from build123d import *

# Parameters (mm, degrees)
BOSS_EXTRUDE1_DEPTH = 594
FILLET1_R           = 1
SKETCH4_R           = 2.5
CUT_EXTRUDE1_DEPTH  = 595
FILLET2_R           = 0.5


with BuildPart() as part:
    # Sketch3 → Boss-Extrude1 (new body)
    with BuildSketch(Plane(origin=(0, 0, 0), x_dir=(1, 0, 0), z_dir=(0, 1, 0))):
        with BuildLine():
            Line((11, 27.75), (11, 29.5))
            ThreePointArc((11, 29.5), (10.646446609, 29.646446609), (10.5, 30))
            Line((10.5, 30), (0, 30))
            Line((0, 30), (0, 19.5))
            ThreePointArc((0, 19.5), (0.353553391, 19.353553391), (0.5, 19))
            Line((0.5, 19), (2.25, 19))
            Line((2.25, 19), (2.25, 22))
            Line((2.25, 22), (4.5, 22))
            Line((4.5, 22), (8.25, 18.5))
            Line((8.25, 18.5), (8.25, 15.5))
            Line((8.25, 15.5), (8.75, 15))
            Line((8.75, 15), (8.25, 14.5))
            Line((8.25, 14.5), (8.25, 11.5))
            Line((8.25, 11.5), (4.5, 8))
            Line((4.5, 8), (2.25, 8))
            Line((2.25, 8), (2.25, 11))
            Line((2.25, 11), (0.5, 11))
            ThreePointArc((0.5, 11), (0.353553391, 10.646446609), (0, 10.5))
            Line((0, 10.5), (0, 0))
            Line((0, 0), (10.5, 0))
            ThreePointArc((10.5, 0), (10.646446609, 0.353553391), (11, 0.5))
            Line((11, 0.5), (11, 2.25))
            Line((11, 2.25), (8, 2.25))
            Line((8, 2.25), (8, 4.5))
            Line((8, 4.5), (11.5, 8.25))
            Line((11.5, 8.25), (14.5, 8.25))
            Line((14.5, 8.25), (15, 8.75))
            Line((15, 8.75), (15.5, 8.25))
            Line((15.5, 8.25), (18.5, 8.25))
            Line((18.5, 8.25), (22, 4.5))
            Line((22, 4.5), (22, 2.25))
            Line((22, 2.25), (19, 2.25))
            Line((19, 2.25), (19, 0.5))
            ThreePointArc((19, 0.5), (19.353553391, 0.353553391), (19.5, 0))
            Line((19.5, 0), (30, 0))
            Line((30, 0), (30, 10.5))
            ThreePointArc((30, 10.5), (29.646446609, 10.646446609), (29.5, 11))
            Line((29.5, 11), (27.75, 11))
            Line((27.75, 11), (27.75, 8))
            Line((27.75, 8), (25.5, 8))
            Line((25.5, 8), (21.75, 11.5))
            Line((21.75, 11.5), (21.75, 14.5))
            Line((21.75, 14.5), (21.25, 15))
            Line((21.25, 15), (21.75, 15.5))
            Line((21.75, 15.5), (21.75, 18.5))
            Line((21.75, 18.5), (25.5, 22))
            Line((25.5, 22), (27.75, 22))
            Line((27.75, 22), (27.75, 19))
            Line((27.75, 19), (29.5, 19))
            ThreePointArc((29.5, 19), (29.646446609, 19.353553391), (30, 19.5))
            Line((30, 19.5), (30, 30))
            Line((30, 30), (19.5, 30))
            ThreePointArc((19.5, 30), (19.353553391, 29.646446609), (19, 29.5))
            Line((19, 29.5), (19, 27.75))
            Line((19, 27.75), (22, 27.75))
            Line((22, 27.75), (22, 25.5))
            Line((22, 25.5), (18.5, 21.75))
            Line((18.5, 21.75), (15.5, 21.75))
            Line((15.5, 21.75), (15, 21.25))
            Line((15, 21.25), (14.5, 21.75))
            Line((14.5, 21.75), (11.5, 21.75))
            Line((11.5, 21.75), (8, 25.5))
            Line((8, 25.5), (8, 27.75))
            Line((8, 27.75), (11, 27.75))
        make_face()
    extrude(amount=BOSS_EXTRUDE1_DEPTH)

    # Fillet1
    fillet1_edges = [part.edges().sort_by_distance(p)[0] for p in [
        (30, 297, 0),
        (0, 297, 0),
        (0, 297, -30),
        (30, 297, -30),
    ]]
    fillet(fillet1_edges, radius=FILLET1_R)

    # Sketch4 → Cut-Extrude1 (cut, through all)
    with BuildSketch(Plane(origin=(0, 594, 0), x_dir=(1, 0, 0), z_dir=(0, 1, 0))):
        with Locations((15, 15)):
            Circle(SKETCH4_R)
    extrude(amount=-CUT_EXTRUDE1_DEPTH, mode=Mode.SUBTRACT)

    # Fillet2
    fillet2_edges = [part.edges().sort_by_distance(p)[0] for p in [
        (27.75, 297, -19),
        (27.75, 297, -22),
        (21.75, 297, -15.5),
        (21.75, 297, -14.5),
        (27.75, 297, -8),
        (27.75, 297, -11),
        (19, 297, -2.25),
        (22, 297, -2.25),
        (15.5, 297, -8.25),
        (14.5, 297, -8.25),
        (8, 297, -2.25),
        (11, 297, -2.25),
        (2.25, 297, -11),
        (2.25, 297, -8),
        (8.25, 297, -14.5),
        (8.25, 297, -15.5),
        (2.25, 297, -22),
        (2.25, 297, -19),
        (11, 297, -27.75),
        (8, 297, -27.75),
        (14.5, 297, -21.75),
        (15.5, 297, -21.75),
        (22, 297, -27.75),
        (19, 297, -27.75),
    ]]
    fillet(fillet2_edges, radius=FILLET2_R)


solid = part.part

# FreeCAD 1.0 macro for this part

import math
import FreeCAD as App
import Part
import Sketcher

V = App.Vector
Q = App.Units.Quantity


def edges_at(feature, points):
    """Names of the edges that pass closest to the given points."""
    edges = feature.Shape.Edges
    near = lambda p: min(range(len(edges)), key=lambda i: edges[i].distToShape(Part.Vertex(*p))[0])
    return sorted({f"Edge{near(p) + 1}" for p in points})

doc = App.newDocument("Part")
body = doc.addObject("PartDesign::Body", "Body")

# Sketch on XZ plane
sketch1 = doc.addObject("Sketcher::SketchObject", "Sketch")
body.addObject(sketch1)
sketch1.AttachmentSupport = (doc.XZ_Plane, [""])
sketch1.MapMode = "FlatFace"
sketch1.addGeometry(Part.LineSegment(V(11, -27.75, 0), V(11, -29.5, 0)), False)
sketch1.addGeometry(Part.ArcOfCircle(Part.Circle(V(11, -30, 0), V(0, 0, 1), 0.5), math.radians(90), math.radians(180)), False)
sketch1.addGeometry(Part.LineSegment(V(10.5, -30, 0), V(0, -30, 0)), False)
sketch1.addGeometry(Part.LineSegment(V(0, -30, 0), V(0, -19.5, 0)), False)
sketch1.addGeometry(Part.ArcOfCircle(Part.Circle(V(0, -19, 0), V(0, 0, 1), 0.5), math.radians(-90), math.radians(0)), False)
sketch1.addGeometry(Part.LineSegment(V(0.5, -19, 0), V(2.25, -19, 0)), False)
sketch1.addGeometry(Part.LineSegment(V(2.25, -19, 0), V(2.25, -22, 0)), False)
sketch1.addGeometry(Part.LineSegment(V(2.25, -22, 0), V(4.5, -22, 0)), False)
sketch1.addGeometry(Part.LineSegment(V(4.5, -22, 0), V(8.25, -18.5, 0)), False)
sketch1.addGeometry(Part.LineSegment(V(8.25, -18.5, 0), V(8.25, -15.5, 0)), False)
sketch1.addGeometry(Part.LineSegment(V(8.25, -15.5, 0), V(8.75, -15, 0)), False)
sketch1.addGeometry(Part.LineSegment(V(8.75, -15, 0), V(8.25, -14.5, 0)), False)
sketch1.addGeometry(Part.LineSegment(V(8.25, -14.5, 0), V(8.25, -11.5, 0)), False)
sketch1.addGeometry(Part.LineSegment(V(8.25, -11.5, 0), V(4.5, -8, 0)), False)
sketch1.addGeometry(Part.LineSegment(V(4.5, -8, 0), V(2.25, -8, 0)), False)
sketch1.addGeometry(Part.LineSegment(V(2.25, -8, 0), V(2.25, -11, 0)), False)
sketch1.addGeometry(Part.LineSegment(V(2.25, -11, 0), V(0.5, -11, 0)), False)
sketch1.addGeometry(Part.ArcOfCircle(Part.Circle(V(0, -11, 0), V(0, 0, 1), 0.5), math.radians(0), math.radians(90)), False)
sketch1.addGeometry(Part.LineSegment(V(0, -10.5, 0), V(0, 0, 0)), False)
sketch1.addGeometry(Part.LineSegment(V(0, 0, 0), V(10.5, 0, 0)), False)
sketch1.addGeometry(Part.ArcOfCircle(Part.Circle(V(11, 0, 0), V(0, 0, 1), 0.5), math.radians(180), math.radians(270)), False)
sketch1.addGeometry(Part.LineSegment(V(11, -0.5, 0), V(11, -2.25, 0)), False)
sketch1.addGeometry(Part.LineSegment(V(11, -2.25, 0), V(8, -2.25, 0)), False)
sketch1.addGeometry(Part.LineSegment(V(8, -2.25, 0), V(8, -4.5, 0)), False)
sketch1.addGeometry(Part.LineSegment(V(8, -4.5, 0), V(11.5, -8.25, 0)), False)
sketch1.addGeometry(Part.LineSegment(V(11.5, -8.25, 0), V(14.5, -8.25, 0)), False)
sketch1.addGeometry(Part.LineSegment(V(14.5, -8.25, 0), V(15, -8.75, 0)), False)
sketch1.addGeometry(Part.LineSegment(V(15, -8.75, 0), V(15.5, -8.25, 0)), False)
sketch1.addGeometry(Part.LineSegment(V(15.5, -8.25, 0), V(18.5, -8.25, 0)), False)
sketch1.addGeometry(Part.LineSegment(V(18.5, -8.25, 0), V(22, -4.5, 0)), False)
sketch1.addGeometry(Part.LineSegment(V(22, -4.5, 0), V(22, -2.25, 0)), False)
sketch1.addGeometry(Part.LineSegment(V(22, -2.25, 0), V(19, -2.25, 0)), False)
sketch1.addGeometry(Part.LineSegment(V(19, -2.25, 0), V(19, -0.5, 0)), False)
sketch1.addGeometry(Part.ArcOfCircle(Part.Circle(V(19, 0, 0), V(0, 0, 1), 0.5), math.radians(-90), math.radians(0)), False)
sketch1.addGeometry(Part.LineSegment(V(19.5, 0, 0), V(30, 0, 0)), False)
sketch1.addGeometry(Part.LineSegment(V(30, 0, 0), V(30, -10.5, 0)), False)
sketch1.addGeometry(Part.ArcOfCircle(Part.Circle(V(30, -11, 0), V(0, 0, 1), 0.5), math.radians(90), math.radians(180)), False)
sketch1.addGeometry(Part.LineSegment(V(29.5, -11, 0), V(27.75, -11, 0)), False)
sketch1.addGeometry(Part.LineSegment(V(27.75, -11, 0), V(27.75, -8, 0)), False)
sketch1.addGeometry(Part.LineSegment(V(27.75, -8, 0), V(25.5, -8, 0)), False)
sketch1.addGeometry(Part.LineSegment(V(25.5, -8, 0), V(21.75, -11.5, 0)), False)
sketch1.addGeometry(Part.LineSegment(V(21.75, -11.5, 0), V(21.75, -14.5, 0)), False)
sketch1.addGeometry(Part.LineSegment(V(21.75, -14.5, 0), V(21.25, -15, 0)), False)
sketch1.addGeometry(Part.LineSegment(V(21.25, -15, 0), V(21.75, -15.5, 0)), False)
sketch1.addGeometry(Part.LineSegment(V(21.75, -15.5, 0), V(21.75, -18.5, 0)), False)
sketch1.addGeometry(Part.LineSegment(V(21.75, -18.5, 0), V(25.5, -22, 0)), False)
sketch1.addGeometry(Part.LineSegment(V(25.5, -22, 0), V(27.75, -22, 0)), False)
sketch1.addGeometry(Part.LineSegment(V(27.75, -22, 0), V(27.75, -19, 0)), False)
sketch1.addGeometry(Part.LineSegment(V(27.75, -19, 0), V(29.5, -19, 0)), False)
sketch1.addGeometry(Part.ArcOfCircle(Part.Circle(V(30, -19, 0), V(0, 0, 1), 0.5), math.radians(180), math.radians(270)), False)
sketch1.addGeometry(Part.LineSegment(V(30, -19.5, 0), V(30, -30, 0)), False)
sketch1.addGeometry(Part.LineSegment(V(30, -30, 0), V(19.5, -30, 0)), False)
sketch1.addGeometry(Part.ArcOfCircle(Part.Circle(V(19, -30, 0), V(0, 0, 1), 0.5), math.radians(0), math.radians(90)), False)
sketch1.addGeometry(Part.LineSegment(V(19, -29.5, 0), V(19, -27.75, 0)), False)
sketch1.addGeometry(Part.LineSegment(V(19, -27.75, 0), V(22, -27.75, 0)), False)
sketch1.addGeometry(Part.LineSegment(V(22, -27.75, 0), V(22, -25.5, 0)), False)
sketch1.addGeometry(Part.LineSegment(V(22, -25.5, 0), V(18.5, -21.75, 0)), False)
sketch1.addGeometry(Part.LineSegment(V(18.5, -21.75, 0), V(15.5, -21.75, 0)), False)
sketch1.addGeometry(Part.LineSegment(V(15.5, -21.75, 0), V(15, -21.25, 0)), False)
sketch1.addGeometry(Part.LineSegment(V(15, -21.25, 0), V(14.5, -21.75, 0)), False)
sketch1.addGeometry(Part.LineSegment(V(14.5, -21.75, 0), V(11.5, -21.75, 0)), False)
sketch1.addGeometry(Part.LineSegment(V(11.5, -21.75, 0), V(8, -25.5, 0)), False)
sketch1.addGeometry(Part.LineSegment(V(8, -25.5, 0), V(8, -27.75, 0)), False)
sketch1.addGeometry(Part.LineSegment(V(8, -27.75, 0), V(11, -27.75, 0)), False)
sketch1.addConstraint(Sketcher.Constraint("Coincident", 0, 2, 1, 1))
sketch1.addConstraint(Sketcher.Constraint("Coincident", 1, 2, 2, 1))
sketch1.addConstraint(Sketcher.Constraint("Coincident", 2, 2, 3, 1))
sketch1.addConstraint(Sketcher.Constraint("Coincident", 3, 2, 4, 1))
sketch1.addConstraint(Sketcher.Constraint("Coincident", 4, 2, 5, 1))
sketch1.addConstraint(Sketcher.Constraint("Coincident", 5, 2, 6, 1))
sketch1.addConstraint(Sketcher.Constraint("Coincident", 6, 2, 7, 1))
sketch1.addConstraint(Sketcher.Constraint("Coincident", 7, 2, 8, 1))
sketch1.addConstraint(Sketcher.Constraint("Coincident", 8, 2, 9, 1))
sketch1.addConstraint(Sketcher.Constraint("Coincident", 9, 2, 10, 1))
sketch1.addConstraint(Sketcher.Constraint("Coincident", 10, 2, 11, 1))
sketch1.addConstraint(Sketcher.Constraint("Coincident", 11, 2, 12, 1))
sketch1.addConstraint(Sketcher.Constraint("Coincident", 12, 2, 13, 1))
sketch1.addConstraint(Sketcher.Constraint("Coincident", 13, 2, 14, 1))
sketch1.addConstraint(Sketcher.Constraint("Coincident", 14, 2, 15, 1))
sketch1.addConstraint(Sketcher.Constraint("Coincident", 15, 2, 16, 1))
sketch1.addConstraint(Sketcher.Constraint("Coincident", 16, 2, 17, 1))
sketch1.addConstraint(Sketcher.Constraint("Coincident", 17, 2, 18, 1))
sketch1.addConstraint(Sketcher.Constraint("Coincident", 18, 2, 19, 1))
sketch1.addConstraint(Sketcher.Constraint("Coincident", 19, 2, 20, 1))
sketch1.addConstraint(Sketcher.Constraint("Coincident", 20, 2, 21, 1))
sketch1.addConstraint(Sketcher.Constraint("Coincident", 21, 2, 22, 1))
sketch1.addConstraint(Sketcher.Constraint("Coincident", 22, 2, 23, 1))
sketch1.addConstraint(Sketcher.Constraint("Coincident", 23, 2, 24, 1))
sketch1.addConstraint(Sketcher.Constraint("Coincident", 24, 2, 25, 1))
sketch1.addConstraint(Sketcher.Constraint("Coincident", 25, 2, 26, 1))
sketch1.addConstraint(Sketcher.Constraint("Coincident", 26, 2, 27, 1))
sketch1.addConstraint(Sketcher.Constraint("Coincident", 27, 2, 28, 1))
sketch1.addConstraint(Sketcher.Constraint("Coincident", 28, 2, 29, 1))
sketch1.addConstraint(Sketcher.Constraint("Coincident", 29, 2, 30, 1))
sketch1.addConstraint(Sketcher.Constraint("Coincident", 30, 2, 31, 1))
sketch1.addConstraint(Sketcher.Constraint("Coincident", 31, 2, 32, 1))
sketch1.addConstraint(Sketcher.Constraint("Coincident", 32, 2, 33, 1))
sketch1.addConstraint(Sketcher.Constraint("Coincident", 33, 2, 34, 1))
sketch1.addConstraint(Sketcher.Constraint("Coincident", 34, 2, 35, 1))
sketch1.addConstraint(Sketcher.Constraint("Coincident", 35, 2, 36, 1))
sketch1.addConstraint(Sketcher.Constraint("Coincident", 36, 2, 37, 1))
sketch1.addConstraint(Sketcher.Constraint("Coincident", 37, 2, 38, 1))
sketch1.addConstraint(Sketcher.Constraint("Coincident", 38, 2, 39, 1))
sketch1.addConstraint(Sketcher.Constraint("Coincident", 39, 2, 40, 1))
sketch1.addConstraint(Sketcher.Constraint("Coincident", 40, 2, 41, 1))
sketch1.addConstraint(Sketcher.Constraint("Coincident", 41, 2, 42, 1))
sketch1.addConstraint(Sketcher.Constraint("Coincident", 42, 2, 43, 1))
sketch1.addConstraint(Sketcher.Constraint("Coincident", 43, 2, 44, 1))
sketch1.addConstraint(Sketcher.Constraint("Coincident", 44, 2, 45, 1))
sketch1.addConstraint(Sketcher.Constraint("Coincident", 45, 2, 46, 1))
sketch1.addConstraint(Sketcher.Constraint("Coincident", 46, 2, 47, 1))
sketch1.addConstraint(Sketcher.Constraint("Coincident", 47, 2, 48, 1))
sketch1.addConstraint(Sketcher.Constraint("Coincident", 48, 2, 49, 1))
sketch1.addConstraint(Sketcher.Constraint("Coincident", 49, 2, 50, 1))
sketch1.addConstraint(Sketcher.Constraint("Coincident", 50, 2, 51, 1))
sketch1.addConstraint(Sketcher.Constraint("Coincident", 51, 2, 52, 1))
sketch1.addConstraint(Sketcher.Constraint("Coincident", 52, 2, 53, 1))
sketch1.addConstraint(Sketcher.Constraint("Coincident", 53, 2, 54, 1))
sketch1.addConstraint(Sketcher.Constraint("Coincident", 54, 2, 55, 1))
sketch1.addConstraint(Sketcher.Constraint("Coincident", 55, 2, 56, 1))
sketch1.addConstraint(Sketcher.Constraint("Coincident", 56, 2, 57, 1))
sketch1.addConstraint(Sketcher.Constraint("Coincident", 57, 2, 58, 1))
sketch1.addConstraint(Sketcher.Constraint("Coincident", 58, 2, 59, 1))
sketch1.addConstraint(Sketcher.Constraint("Coincident", 59, 2, 60, 1))
sketch1.addConstraint(Sketcher.Constraint("Coincident", 60, 2, 61, 1))
sketch1.addConstraint(Sketcher.Constraint("Coincident", 61, 2, 62, 1))
sketch1.addConstraint(Sketcher.Constraint("Coincident", 62, 2, 63, 1))
sketch1.addConstraint(Sketcher.Constraint("Coincident", 63, 2, 0, 1))
sketch1.addConstraint(Sketcher.Constraint("Vertical", 0))
sketch1.addConstraint(Sketcher.Constraint("Horizontal", 2))
sketch1.addConstraint(Sketcher.Constraint("Vertical", 3))
sketch1.addConstraint(Sketcher.Constraint("Horizontal", 5))
sketch1.addConstraint(Sketcher.Constraint("Vertical", 6))
sketch1.addConstraint(Sketcher.Constraint("Horizontal", 7))
sketch1.addConstraint(Sketcher.Constraint("Vertical", 9))
sketch1.addConstraint(Sketcher.Constraint("Vertical", 12))
sketch1.addConstraint(Sketcher.Constraint("Horizontal", 14))
sketch1.addConstraint(Sketcher.Constraint("Vertical", 15))
sketch1.addConstraint(Sketcher.Constraint("Horizontal", 16))
sketch1.addConstraint(Sketcher.Constraint("Vertical", 18))
sketch1.addConstraint(Sketcher.Constraint("Horizontal", 19))
sketch1.addConstraint(Sketcher.Constraint("Vertical", 21))
sketch1.addConstraint(Sketcher.Constraint("Horizontal", 22))
sketch1.addConstraint(Sketcher.Constraint("Vertical", 23))
sketch1.addConstraint(Sketcher.Constraint("Horizontal", 25))
sketch1.addConstraint(Sketcher.Constraint("Horizontal", 28))
sketch1.addConstraint(Sketcher.Constraint("Vertical", 30))
sketch1.addConstraint(Sketcher.Constraint("Horizontal", 31))
sketch1.addConstraint(Sketcher.Constraint("Vertical", 32))
sketch1.addConstraint(Sketcher.Constraint("Horizontal", 34))
sketch1.addConstraint(Sketcher.Constraint("Vertical", 35))
sketch1.addConstraint(Sketcher.Constraint("Horizontal", 37))
sketch1.addConstraint(Sketcher.Constraint("Vertical", 38))
sketch1.addConstraint(Sketcher.Constraint("Horizontal", 39))
sketch1.addConstraint(Sketcher.Constraint("Vertical", 41))
sketch1.addConstraint(Sketcher.Constraint("Vertical", 44))
sketch1.addConstraint(Sketcher.Constraint("Horizontal", 46))
sketch1.addConstraint(Sketcher.Constraint("Vertical", 47))
sketch1.addConstraint(Sketcher.Constraint("Horizontal", 48))
sketch1.addConstraint(Sketcher.Constraint("Vertical", 50))
sketch1.addConstraint(Sketcher.Constraint("Horizontal", 51))
sketch1.addConstraint(Sketcher.Constraint("Vertical", 53))
sketch1.addConstraint(Sketcher.Constraint("Horizontal", 54))
sketch1.addConstraint(Sketcher.Constraint("Vertical", 55))
sketch1.addConstraint(Sketcher.Constraint("Horizontal", 57))
sketch1.addConstraint(Sketcher.Constraint("Horizontal", 60))
sketch1.addConstraint(Sketcher.Constraint("Vertical", 62))
sketch1.addConstraint(Sketcher.Constraint("Horizontal", 63))
sketch1.addConstraint(Sketcher.Constraint("Coincident", 18, 2, -1, 1))
sketch1.addConstraint(Sketcher.Constraint("Equal", 1, 4))
sketch1.addConstraint(Sketcher.Constraint("Equal", 4, 17))
sketch1.addConstraint(Sketcher.Constraint("Equal", 17, 20))
sketch1.addConstraint(Sketcher.Constraint("Equal", 20, 33))
sketch1.addConstraint(Sketcher.Constraint("Equal", 33, 36))
sketch1.addConstraint(Sketcher.Constraint("Equal", 36, 49))
sketch1.addConstraint(Sketcher.Constraint("Equal", 49, 52))
sketch1.addConstraint(Sketcher.Constraint("PointOnObject", 4, 3, -2))
sketch1.addConstraint(Sketcher.Constraint("PointOnObject", 17, 3, -2))
sketch1.addConstraint(Sketcher.Constraint("PointOnObject", 20, 3, -1))
sketch1.addConstraint(Sketcher.Constraint("PointOnObject", 33, 3, -1))
sketch1.addConstraint(Sketcher.Constraint("PointOnObject", 2, 2, -2))
sketch1.addConstraint(Sketcher.Constraint("PointOnObject", 33, 2, -1))
sketch1.addConstraint(Sketcher.Constraint("Perpendicular", 10, 11))
sketch1.addConstraint(Sketcher.Constraint("Perpendicular", 8, 24))
sketch1.addConstraint(Sketcher.Constraint("Parallel", 11, 26))
sketch1.addConstraint(Sketcher.Constraint("Perpendicular", 26, 27))
sketch1.addConstraint(Sketcher.Constraint("Perpendicular", 13, 29))
sketch1.addConstraint(Sketcher.Constraint("Perpendicular", 24, 40))
sketch1.addConstraint(Sketcher.Constraint("Parallel", 27, 42))
sketch1.addConstraint(Sketcher.Constraint("Perpendicular", 42, 43))
sketch1.addConstraint(Sketcher.Constraint("Perpendicular", 29, 45))
sketch1.addConstraint(Sketcher.Constraint("Perpendicular", 40, 56))
sketch1.addConstraint(Sketcher.Constraint("Parallel", 43, 58))
sketch1.addConstraint(Sketcher.Constraint("Perpendicular", 58, 59))
sketch1.addConstraint(Sketcher.Constraint("Perpendicular", 45, 61))
sketch1.addConstraint(Sketcher.Constraint("Horizontal", 17, 3, 36, 3))
sketch1.addConstraint(Sketcher.Constraint("Horizontal", 4, 3, 49, 3))
sketch1.addConstraint(Sketcher.Constraint("Horizontal", 1, 3, 52, 3))
sketch1.addConstraint(Sketcher.Constraint("Horizontal", 52, 3, 1, 2))
sketch1.addConstraint(Sketcher.Constraint("Horizontal", 49, 3, 4, 2))
sketch1.addConstraint(Sketcher.Constraint("Horizontal", 36, 3, 15, 2))
sketch1.addConstraint(Sketcher.Constraint("Horizontal", 25, 2, 27, 2))
sketch1.addConstraint(Sketcher.Constraint("Horizontal", 23, 2, 29, 2))
sketch1.addConstraint(Sketcher.Constraint("Horizontal", 22, 2, 30, 2))
sketch1.addConstraint(Sketcher.Constraint("Horizontal", 16, 2, 36, 2))
sketch1.addConstraint(Sketcher.Constraint("Horizontal", 14, 2, 38, 2))
sketch1.addConstraint(Sketcher.Constraint("Horizontal", 12, 2, 40, 2))
sketch1.addConstraint(Sketcher.Constraint("Horizontal", 11, 2, 41, 2))
sketch1.addConstraint(Sketcher.Constraint("Horizontal", 10, 2, 42, 2))
sketch1.addConstraint(Sketcher.Constraint("Horizontal", 9, 2, 43, 2))
sketch1.addConstraint(Sketcher.Constraint("Horizontal", 8, 2, 44, 2))
sketch1.addConstraint(Sketcher.Constraint("Horizontal", 7, 2, 45, 2))
sketch1.addConstraint(Sketcher.Constraint("Horizontal", 5, 2, 47, 2))
sketch1.addConstraint(Sketcher.Constraint("Horizontal", 2, 2, 50, 2))
sketch1.addConstraint(Sketcher.Constraint("Horizontal", 57, 2, 59, 2))
sketch1.addConstraint(Sketcher.Constraint("Horizontal", 55, 2, 61, 2))
sketch1.addConstraint(Sketcher.Constraint("Horizontal", 54, 2, 62, 2))
sketch1.addConstraint(Sketcher.Constraint("Vertical", 1, 3, 20, 3))
sketch1.addConstraint(Sketcher.Constraint("Vertical", 36, 3, 49, 3))
sketch1.addConstraint(Sketcher.Constraint("Vertical", 33, 3, 52, 3))
sketch1.addConstraint(Sketcher.Constraint("Vertical", 20, 3, 0, 2))
sketch1.addConstraint(Sketcher.Constraint("Vertical", 9, 2, 11, 2))
sketch1.addConstraint(Sketcher.Constraint("Vertical", 7, 2, 13, 2))
sketch1.addConstraint(Sketcher.Constraint("Vertical", 6, 2, 14, 2))
sketch1.addConstraint(Sketcher.Constraint("Vertical", 0, 2, 20, 2))
sketch1.addConstraint(Sketcher.Constraint("Vertical", 52, 3, 31, 2))
sketch1.addConstraint(Sketcher.Constraint("Vertical", 49, 3, 34, 2))
sketch1.addConstraint(Sketcher.Constraint("Vertical", 41, 2, 43, 2))
sketch1.addConstraint(Sketcher.Constraint("Vertical", 39, 2, 45, 2))
sketch1.addConstraint(Sketcher.Constraint("Vertical", 38, 2, 46, 2))
sketch1.addConstraint(Sketcher.Constraint("Vertical", 35, 2, 49, 2))
sketch1.addConstraint(Sketcher.Constraint("Vertical", 32, 2, 52, 2))
sketch1.addConstraint(Sketcher.Constraint("Vertical", 30, 2, 54, 2))
sketch1.addConstraint(Sketcher.Constraint("Vertical", 28, 2, 56, 2))
sketch1.addConstraint(Sketcher.Constraint("Vertical", 27, 2, 57, 2))
sketch1.addConstraint(Sketcher.Constraint("Vertical", 26, 2, 58, 2))
sketch1.addConstraint(Sketcher.Constraint("Vertical", 24, 2, 60, 2))
sketch1.addConstraint(Sketcher.Constraint("Equal", 22, 25))
sketch1.addConstraint(Sketcher.Constraint("Equal", 25, 28))
sketch1.addConstraint(Sketcher.Constraint("Equal", 28, 31))
sketch1.addConstraint(Sketcher.Constraint("Equal", 19, 34))
sketch1.addConstraint(Sketcher.Constraint("Equal", 16, 37))
sketch1.addConstraint(Sketcher.Constraint("Equal", 14, 39))
sketch1.addConstraint(Sketcher.Constraint("Equal", 48, 0))
sketch1.addConstraint(Sketcher.Constraint("Equal", 51, 3))
sketch1.addConstraint(Sketcher.Constraint("Equal", 63, 6))
sketch1.addConstraint(Sketcher.Constraint("Equal", 6, 9))
sketch1.addConstraint(Sketcher.Constraint("Equal", 9, 12))
sketch1.addConstraint(Sketcher.Constraint("Equal", 12, 15))
sketch1.addConstraint(Sketcher.Constraint("Equal", 3, 18))
sketch1.addConstraint(Sketcher.Constraint("Equal", 0, 21))
sketch1.addConstraint(Sketcher.Constraint("Equal", 46, 23))
sketch1.addConstraint(Sketcher.Constraint("Equal", 30, 55))
sketch1.addConstraint(Sketcher.Constraint("Equal", 13, 24))
sketch1.addConstraint(Sketcher.Constraint("Equal", 11, 26))
sketch1.addConstraint(Sketcher.Constraint("Radius", 1, Q("0.5 mm")))
sketch1.addConstraint(Sketcher.Constraint("DistanceX", 22, 2, 22, 1, Q("3 mm")))
sketch1.addConstraint(Sketcher.Constraint("DistanceX", 2, 2, 2, 1, Q("10.5 mm")))
sketch1.addConstraint(Sketcher.Constraint("DistanceY", 1, 3, -1, 1, Q("30 mm")))
sketch1.addConstraint(Sketcher.Constraint("DistanceX", 5, 1, 5, 2, Q("1.75 mm")))
sketch1.addConstraint(Sketcher.Constraint("DistanceX", 7, 1, 7, 2, Q("2.25 mm")))
sketch1.addConstraint(Sketcher.Constraint("DistanceY", 8, 2, -1, 1, Q("18.5 mm")))
sketch1.addConstraint(Sketcher.Constraint("DistanceX", -1, 1, 8, 2, Q("8.25 mm")))
pad1 = doc.addObject("PartDesign::Pad", "Pad")
body.addObject(pad1)
pad1.Profile = sketch1
pad1.Length = 594
pad1.Reversed = True
doc.recompute()

fillet = doc.addObject("PartDesign::Fillet", "Fillet")
body.addObject(fillet)
fillet.Base = (pad1, edges_at(pad1, [
    (30, 297, 0),
    (0, 297, 0),
    (0, 297, -30),
    (30, 297, -30),
]))
fillet.Radius = 1

# Sketch on XZ plane
sketch2 = doc.addObject("Sketcher::SketchObject", "Sketch001")
body.addObject(sketch2)
sketch2.AttachmentSupport = (doc.XZ_Plane, [""])
sketch2.MapMode = "FlatFace"
sketch2.AttachmentOffset = App.Placement(V(0, 0, -594), App.Rotation())
sketch2.addGeometry(Part.Circle(V(15, -15, 0), V(0, 0, 1), 2.5), False)
sketch2.addConstraint(Sketcher.Constraint("Diameter", 0, Q("5 mm")))
sketch2.addConstraint(Sketcher.Constraint("DistanceX", -1, 1, 0, 3, Q("15 mm")))
sketch2.addConstraint(Sketcher.Constraint("DistanceY", 0, 3, -1, 1, Q("15 mm")))
pocket1 = doc.addObject("PartDesign::Pocket", "Pocket")
body.addObject(pocket1)
pocket1.Profile = sketch2
pocket1.Type = "ThroughAll"
pocket1.Reversed = True
doc.recompute()

fillet2 = doc.addObject("PartDesign::Fillet", "Fillet001")
body.addObject(fillet2)
fillet2.Base = (pocket1, edges_at(pocket1, [
    (27.75, 297, -19),
    (27.75, 297, -22),
    (21.75, 297, -15.5),
    (21.75, 297, -14.5),
    (27.75, 297, -8),
    (27.75, 297, -11),
    (19, 297, -2.25),
    (22, 297, -2.25),
    (15.5, 297, -8.25),
    (14.5, 297, -8.25),
    (8, 297, -2.25),
    (11, 297, -2.25),
    (2.25, 297, -11),
    (2.25, 297, -8),
    (8.25, 297, -14.5),
    (8.25, 297, -15.5),
    (2.25, 297, -22),
    (2.25, 297, -19),
    (11, 297, -27.75),
    (8, 297, -27.75),
    (14.5, 297, -21.75),
    (15.5, 297, -21.75),
    (22, 297, -27.75),
    (19, 297, -27.75),
]))
fillet2.Radius = 0.5

doc.recompute()
